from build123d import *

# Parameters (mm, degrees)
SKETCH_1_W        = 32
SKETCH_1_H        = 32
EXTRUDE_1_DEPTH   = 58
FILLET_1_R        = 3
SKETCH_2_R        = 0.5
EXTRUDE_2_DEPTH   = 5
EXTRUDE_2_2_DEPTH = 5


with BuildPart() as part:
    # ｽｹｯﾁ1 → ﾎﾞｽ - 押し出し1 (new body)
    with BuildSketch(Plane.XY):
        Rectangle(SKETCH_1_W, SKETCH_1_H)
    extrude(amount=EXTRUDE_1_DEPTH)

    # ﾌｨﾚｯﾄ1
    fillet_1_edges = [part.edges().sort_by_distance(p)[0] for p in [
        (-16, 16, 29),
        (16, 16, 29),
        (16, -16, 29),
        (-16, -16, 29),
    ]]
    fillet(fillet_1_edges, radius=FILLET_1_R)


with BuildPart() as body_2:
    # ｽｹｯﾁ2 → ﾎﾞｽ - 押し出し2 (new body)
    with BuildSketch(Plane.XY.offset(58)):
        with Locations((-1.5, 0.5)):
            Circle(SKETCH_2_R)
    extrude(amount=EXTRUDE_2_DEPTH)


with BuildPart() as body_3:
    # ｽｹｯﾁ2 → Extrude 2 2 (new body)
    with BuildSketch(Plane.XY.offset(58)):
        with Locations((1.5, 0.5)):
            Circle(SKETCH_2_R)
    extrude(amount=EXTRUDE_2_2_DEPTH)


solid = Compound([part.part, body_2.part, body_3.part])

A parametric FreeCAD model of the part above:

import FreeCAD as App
import Part
import Sketcher
from FreeCAD import Vector


def edges_at(feature, points):
    """Names of the edges that pass closest to the given points."""
    edges = feature.Shape.Edges
    near = lambda p: min(range(len(edges)), key=lambda i: edges[i].distToShape(Part.Vertex(*p))[0])
    return sorted({f"Edge{near(p) + 1}" for p in points})


def add_polygon(sketch, points):
    """Adds a closed chain of lines whose ends are joined by coincident constraints."""
    first, n = sketch.GeometryCount, len(points)
    for a, b in zip(points, points[1:] + points[:1]):
        sketch.addGeometry(Part.LineSegment(App.Vector(*a, 0), App.Vector(*b, 0)), False)
    for i in range(n):
        sketch.addConstraint(Sketcher.Constraint("Coincident", first + i, 2, first + (i + 1) % n, 1))

doc = App.newDocument("Part")
body = doc.addObject("PartDesign::Body", "Body")

sketch1 = body.newObject("Sketcher::SketchObject", "Sketch")
sketch1.AttachmentSupport = (doc.getObject("XY_Plane"), [""])
sketch1.MapMode = "FlatFace"
add_polygon(sketch1, [(-16, 16), (-16, -16), (16, -16), (16, 16)])
sketch1.addConstraint(Sketcher.Constraint("Vertical", 0))
sketch1.addConstraint(Sketcher.Constraint("Horizontal", 1))
sketch1.addConstraint(Sketcher.Constraint("Vertical", 2))
sketch1.addConstraint(Sketcher.Constraint("Horizontal", 3))
sketch1.addConstraint(Sketcher.Constraint("Symmetric", 0, 2, 2, 2, -1, 1))
sketch1.addConstraint(Sketcher.Constraint("Equal", 3, 0))
sketch1.addConstraint(Sketcher.Constraint("DistanceX", 1, 1, 1, 2, 32.0))
pad1 = body.newObject("PartDesign::Pad", "Pad")
pad1.Profile = sketch1
pad1.Length = 58
doc.recompute()

fillet = body.newObject("PartDesign::Fillet", "Fillet")
fillet.Base = (pad1, edges_at(pad1, [
    (-16, 16, 29),
    (16, 16, 29),
    (16, -16, 29),
    (-16, -16, 29),
]))
fillet.Radius = 3
body2 = doc.addObject("PartDesign::Body", "Body001")

sketch2 = body2.newObject("Sketcher::SketchObject", "Sketch001")
sketch2.AttachmentSupport = (doc.getObject("XY_Plane001"), [""])
sketch2.MapMode = "FlatFace"
sketch2.AttachmentOffset = App.Placement(Vector(0, 0, 58), App.Rotation())
sketch2.addGeometry(Part.Circle(Vector(-1.5, 0.5, 0), Vector(0, 0, 1), 0.5), False)
sketch2.addConstraint(Sketcher.Constraint("Diameter", 0, 1.0))
sketch2.addConstraint(Sketcher.Constraint("DistanceX", 0, 3, -1, 1, 1.5))
sketch2.addConstraint(Sketcher.Constraint("DistanceY", -1, 1, 0, 3, 0.5))
pad2 = body2.newObject("PartDesign::Pad", "Pad001")
pad2.Profile = sketch2
pad2.Length = 5
body3 = doc.addObject("PartDesign::Body", "Body002")

sketch3 = body3.newObject("Sketcher::SketchObject", "Sketch002")
sketch3.AttachmentSupport = (doc.getObject("XY_Plane002"), [""])
sketch3.MapMode = "FlatFace"
sketch3.AttachmentOffset = App.Placement(Vector(0, 0, 58), App.Rotation())
sketch3.addGeometry(Part.Circle(Vector(1.5, 0.5, 0), Vector(0, 0, 1), 0.5), False)
sketch3.addConstraint(Sketcher.Constraint("Diameter", 0, 1.0))
sketch3.addConstraint(Sketcher.Constraint("DistanceX", -1, 1, 0, 3, 1.5))
sketch3.addConstraint(Sketcher.Constraint("DistanceY", -1, 1, 0, 3, 0.5))
pad3 = body3.newObject("PartDesign::Pad", "Pad002")
pad3.Profile = sketch3
pad3.Length = 5

doc.recompute()
